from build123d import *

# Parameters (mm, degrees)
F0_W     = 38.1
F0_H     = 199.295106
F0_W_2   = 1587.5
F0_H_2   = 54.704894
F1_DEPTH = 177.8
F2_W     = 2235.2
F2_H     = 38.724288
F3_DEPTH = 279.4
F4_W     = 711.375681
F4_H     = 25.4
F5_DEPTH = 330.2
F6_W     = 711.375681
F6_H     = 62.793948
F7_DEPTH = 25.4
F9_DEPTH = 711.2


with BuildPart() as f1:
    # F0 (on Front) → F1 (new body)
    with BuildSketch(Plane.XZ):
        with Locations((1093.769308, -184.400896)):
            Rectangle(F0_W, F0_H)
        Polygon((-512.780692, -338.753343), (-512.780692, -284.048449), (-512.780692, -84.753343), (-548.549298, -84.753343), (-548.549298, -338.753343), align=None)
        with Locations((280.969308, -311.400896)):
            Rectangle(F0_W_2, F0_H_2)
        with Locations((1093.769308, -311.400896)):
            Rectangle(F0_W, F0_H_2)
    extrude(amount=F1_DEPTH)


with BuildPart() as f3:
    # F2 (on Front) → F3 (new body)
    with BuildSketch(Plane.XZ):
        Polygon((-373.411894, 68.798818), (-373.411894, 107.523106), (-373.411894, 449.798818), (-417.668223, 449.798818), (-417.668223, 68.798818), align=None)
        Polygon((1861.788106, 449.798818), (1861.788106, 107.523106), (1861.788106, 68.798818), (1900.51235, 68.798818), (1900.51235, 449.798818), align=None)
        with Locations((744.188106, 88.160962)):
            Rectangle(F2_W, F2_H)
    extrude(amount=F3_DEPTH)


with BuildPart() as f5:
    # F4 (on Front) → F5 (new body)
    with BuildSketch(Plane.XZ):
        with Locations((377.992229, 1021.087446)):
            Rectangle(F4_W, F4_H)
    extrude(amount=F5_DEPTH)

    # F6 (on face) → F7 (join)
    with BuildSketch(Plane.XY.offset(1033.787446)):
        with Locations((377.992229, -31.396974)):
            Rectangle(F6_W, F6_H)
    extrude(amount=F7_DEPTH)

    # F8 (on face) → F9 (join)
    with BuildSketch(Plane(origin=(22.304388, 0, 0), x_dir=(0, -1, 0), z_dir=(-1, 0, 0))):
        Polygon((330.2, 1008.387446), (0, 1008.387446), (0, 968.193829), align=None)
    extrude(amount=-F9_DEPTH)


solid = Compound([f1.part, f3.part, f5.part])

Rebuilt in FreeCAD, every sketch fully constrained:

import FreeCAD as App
import Part
import Sketcher
Q = App.Units.Quantity

doc = App.newDocument("Part")
body = doc.addObject("PartDesign::Body", "Body")

sketch1 = body.newObject("Sketcher::SketchObject", "Sketch")
sketch1.AttachmentSupport = (doc.getObject("XZ_Plane"), [""])
sketch1.MapMode = "FlatFace"
sketch1.addGeometry([
    Part.LineSegment(App.Vector(1074.719308, -84.753343, 0), App.Vector(1074.719308, -284.048449, 0)),
    Part.LineSegment(App.Vector(1074.719308, -284.048449, 0), App.Vector(-512.780692, -284.048449, 0)),
    Part.LineSegment(App.Vector(-512.780692, -284.048449, 0), App.Vector(-512.780692, -84.753343, 0)),
    Part.LineSegment(App.Vector(-512.780692, -84.753343, 0), App.Vector(-548.549298, -84.753343, 0)),
    Part.LineSegment(App.Vector(-548.549298, -84.753343, 0), App.Vector(-548.549298, -338.753343, 0)),
    Part.LineSegment(App.Vector(-548.549298, -338.753343, 0), App.Vector(1112.819308, -338.753343, 0)),
    Part.LineSegment(App.Vector(1112.819308, -338.753343, 0), App.Vector(1112.819308, -84.753343, 0)),
    Part.LineSegment(App.Vector(1112.819308, -84.753343, 0), App.Vector(1074.719308, -84.753343, 0)),
], False)
sketch1.addConstraint([
    Sketcher.Constraint("Coincident", 0, 2, 1, 1),
    Sketcher.Constraint("Coincident", 1, 2, 2, 1),
    Sketcher.Constraint("Coincident", 2, 2, 3, 1),
    Sketcher.Constraint("Coincident", 3, 2, 4, 1),
    Sketcher.Constraint("Coincident", 4, 2, 5, 1),
    Sketcher.Constraint("Coincident", 5, 2, 6, 1),
    Sketcher.Constraint("Coincident", 6, 2, 7, 1),
    Sketcher.Constraint("Coincident", 7, 2, 0, 1),
    Sketcher.Constraint("Vertical", 0),
    Sketcher.Constraint("Horizontal", 1),
    Sketcher.Constraint("Vertical", 2),
    Sketcher.Constraint("Horizontal", 3),
    Sketcher.Constraint("Vertical", 4),
    Sketcher.Constraint("Horizontal", 5),
    Sketcher.Constraint("Vertical", 6),
    Sketcher.Constraint("Horizontal", 7),
    Sketcher.Constraint("Horizontal", 3, 2, 6, 2),
    Sketcher.Constraint("DistanceY", 4, 2, 4, 1, Q("10 in")),
    Sketcher.Constraint("DistanceX", 1, 2, 1, 1, Q("62.5 in")),
    Sketcher.Constraint("DistanceX", 7, 2, 7, 1, Q("1.5 in")),
    Sketcher.Constraint("DistanceX", 3, 2, -1, 1, Q("548.549298 mm")),
    Sketcher.Constraint("DistanceX", 3, 2, 3, 1, Q("35.768606 mm")),
    Sketcher.Constraint("DistanceY", 0, 2, 0, 1, Q("199.295106 mm")),
    Sketcher.Constraint("DistanceY", 0, 2, -1, 1, Q("284.048449 mm")),
])
pad1 = body.newObject("PartDesign::Pad", "Pad")
pad1.Profile = sketch1
pad1.Length = Q("7 in")
body2 = doc.addObject("PartDesign::Body", "Body001")

sketch2 = body2.newObject("Sketcher::SketchObject", "Sketch001")
sketch2.AttachmentSupport = (doc.getObject("XZ_Plane001"), [""])
sketch2.MapMode = "FlatFace"
sketch2.addGeometry([
    Part.LineSegment(App.Vector(-373.411894, 107.523106, 0), App.Vector(-373.411894, 449.798818, 0)),
    Part.LineSegment(App.Vector(-373.411894, 449.798818, 0), App.Vector(-417.668223, 449.798818, 0)),
    Part.LineSegment(App.Vector(-417.668223, 449.798818, 0), App.Vector(-417.668223, 68.798818, 0)),
    Part.LineSegment(App.Vector(-417.668223, 68.798818, 0), App.Vector(1900.51235, 68.798818, 0)),
    Part.LineSegment(App.Vector(1900.51235, 68.798818, 0), App.Vector(1900.51235, 449.798818, 0)),
    Part.LineSegment(App.Vector(1900.51235, 449.798818, 0), App.Vector(1861.788106, 449.798818, 0)),
    Part.LineSegment(App.Vector(1861.788106, 449.798818, 0), App.Vector(1861.788106, 107.523106, 0)),
    Part.LineSegment(App.Vector(1861.788106, 107.523106, 0), App.Vector(-373.411894, 107.523106, 0)),
], False)
sketch2.addConstraint([
    Sketcher.Constraint("Coincident", 0, 2, 1, 1),
    Sketcher.Constraint("Coincident", 1, 2, 2, 1),
    Sketcher.Constraint("Coincident", 2, 2, 3, 1),
    Sketcher.Constraint("Coincident", 3, 2, 4, 1),
    Sketcher.Constraint("Coincident", 4, 2, 5, 1),
    Sketcher.Constraint("Coincident", 5, 2, 6, 1),
    Sketcher.Constraint("Coincident", 6, 2, 7, 1),
    Sketcher.Constraint("Coincident", 7, 2, 0, 1),
    Sketcher.Constraint("Vertical", 0),
    Sketcher.Constraint("Horizontal", 1),
    Sketcher.Constraint("Vertical", 2),
    Sketcher.Constraint("Horizontal", 3),
    Sketcher.Constraint("Vertical", 4),
    Sketcher.Constraint("Horizontal", 5),
    Sketcher.Constraint("Vertical", 6),
    Sketcher.Constraint("Horizontal", 7),
    Sketcher.Constraint("Horizontal", 1, 2, 4, 2),
    Sketcher.Constraint("DistanceX", 7, 2, 7, 1, Q("88 in")),
    Sketcher.Constraint("DistanceY", 2, 2, 2, 1, Q("15 in")),
    Sketcher.Constraint("DistanceX", 1, 2, 1, 1, Q("44.256329 mm")),
    Sketcher.Constraint("DistanceY", 0, 1, 0, 2, Q("342.275712 mm")),
    Sketcher.Constraint("DistanceX", 3, 1, 3, 2, Q("2318.180573 mm")),
    Sketcher.Constraint("DistanceY", -1, 1, 0, 2, Q("449.798818 mm")),
    Sketcher.Constraint("DistanceX", -1, 1, 3, 2, Q("1900.51235 mm")),
])
pad2 = body2.newObject("PartDesign::Pad", "Pad001")
pad2.Profile = sketch2
pad2.Length = Q("11 in")
body3 = doc.addObject("PartDesign::Body", "Body002")

sketch3 = body3.newObject("Sketcher::SketchObject", "Sketch002")
sketch3.AttachmentSupport = (doc.getObject("XZ_Plane002"), [""])
sketch3.MapMode = "FlatFace"
sketch3.addGeometry([
    Part.LineSegment(App.Vector(22.304389, 1033.787446, 0), App.Vector(22.304389, 1008.387446, 0)),
    Part.LineSegment(App.Vector(22.304389, 1008.387446, 0), App.Vector(733.680069, 1008.387446, 0)),
    Part.LineSegment(App.Vector(733.680069, 1008.387446, 0), App.Vector(733.680069, 1033.787446, 0)),
    Part.LineSegment(App.Vector(733.680069, 1033.787446, 0), App.Vector(22.304389, 1033.787446, 0)),
], False)
sketch3.addConstraint([
    Sketcher.Constraint("Coincident", 0, 2, 1, 1),
    Sketcher.Constraint("Coincident", 1, 2, 2, 1),
    Sketcher.Constraint("Coincident", 2, 2, 3, 1),
    Sketcher.Constraint("Coincident", 3, 2, 0, 1),
    Sketcher.Constraint("Vertical", 0),
    Sketcher.Constraint("Horizontal", 1),
    Sketcher.Constraint("Vertical", 2),
    Sketcher.Constraint("Horizontal", 3),
    Sketcher.Constraint("DistanceY", 0, 2, 0, 1, Q("1 in")),
    Sketcher.Constraint("DistanceX", 1, 1, 1, 2, Q("711.375681 mm")),
    Sketcher.Constraint("DistanceX", -1, 1, 0, 2, Q("22.304389 mm")),
    Sketcher.Constraint("DistanceY", -1, 1, 0, 2, Q("1008.387446 mm")),
])
pad3 = body3.newObject("PartDesign::Pad", "Pad002")
pad3.Profile = sketch3
pad3.Length = Q("13 in")

sketch4 = body3.newObject("Sketcher::SketchObject", "Sketch003")
sketch4.AttachmentSupport = (doc.getObject("XY_Plane002"), [""])
sketch4.MapMode = "FlatFace"
sketch4.AttachmentOffset = App.Placement(App.Vector(0, 0, 1033.787446), App.Rotation())
sketch4.addGeometry([
    Part.LineSegment(App.Vector(22.304389, 0, 0), App.Vector(22.304389, -62.793948, 0)),
    Part.LineSegment(App.Vector(22.304389, -62.793948, 0), App.Vector(733.680069, -62.793948, 0)),
    Part.LineSegment(App.Vector(733.680069, -62.793948, 0), App.Vector(733.680069, 0, 0)),
    Part.LineSegment(App.Vector(733.680069, 0, 0), App.Vector(22.304389, 0, 0)),
], False)
sketch4.addConstraint([
    Sketcher.Constraint("Coincident", 0, 2, 1, 1),
    Sketcher.Constraint("Coincident", 1, 2, 2, 1),
    Sketcher.Constraint("Coincident", 2, 2, 3, 1),
    Sketcher.Constraint("Coincident", 3, 2, 0, 1),
    Sketcher.Constraint("Vertical", 0),
    Sketcher.Constraint("Horizontal", 1),
    Sketcher.Constraint("Vertical", 2),
    Sketcher.Constraint("Horizontal", 3),
    Sketcher.Constraint("PointOnObject", 2, 2, -1),
    Sketcher.Constraint("DistanceX", 1, 1, 1, 2, Q("711.375681 mm")),
    Sketcher.Constraint("DistanceY", 0, 2, 0, 1, Q("62.793948 mm")),
    Sketcher.Constraint("DistanceX", -1, 1, 0, 2, Q("22.304389 mm")),
])
pad4 = body3.newObject("PartDesign::Pad", "Pad003")
pad4.Profile = sketch4
pad4.Length = Q("1 in")

sketch5 = body3.newObject("Sketcher::SketchObject", "Sketch004")
sketch5.AttachmentSupport = (doc.getObject("YZ_Plane002"), [""])
sketch5.MapMode = "FlatFace"
sketch5.AttachmentOffset = App.Placement(App.Vector(0, 0, 22.304388), App.Rotation())
sketch5.addGeometry([
    Part.LineSegment(App.Vector(-330.2, 1008.387446, 0), App.Vector(0, 1008.387446, 0)),
    Part.LineSegment(App.Vector(0, 1008.387446, 0), App.Vector(0, 968.193829, 0)),
    Part.LineSegment(App.Vector(0, 968.193829, 0), App.Vector(-330.2, 1008.387446, 0)),
], False)
sketch5.addConstraint([
    Sketcher.Constraint("Coincident", 0, 2, 1, 1),
    Sketcher.Constraint("Coincident", 1, 2, 2, 1),
    Sketcher.Constraint("Coincident", 2, 2, 0, 1),
    Sketcher.Constraint("Horizontal", 0),
    Sketcher.Constraint("Vertical", 1),
    Sketcher.Constraint("PointOnObject", 0, 2, -2),
    Sketcher.Constraint("DistanceX", 0, 1, 0, 2, Q("13 in")),
    Sketcher.Constraint("Distance", 2, Q("332.63729 mm")),
    Sketcher.Constraint("DistanceY", -1, 1, 1, 2, Q("968.193829 mm")),
])
pad5 = body3.newObject("PartDesign::Pad", "Pad004")
pad5.Profile = sketch5
pad5.Length = Q("28 in")

doc.recompute()
